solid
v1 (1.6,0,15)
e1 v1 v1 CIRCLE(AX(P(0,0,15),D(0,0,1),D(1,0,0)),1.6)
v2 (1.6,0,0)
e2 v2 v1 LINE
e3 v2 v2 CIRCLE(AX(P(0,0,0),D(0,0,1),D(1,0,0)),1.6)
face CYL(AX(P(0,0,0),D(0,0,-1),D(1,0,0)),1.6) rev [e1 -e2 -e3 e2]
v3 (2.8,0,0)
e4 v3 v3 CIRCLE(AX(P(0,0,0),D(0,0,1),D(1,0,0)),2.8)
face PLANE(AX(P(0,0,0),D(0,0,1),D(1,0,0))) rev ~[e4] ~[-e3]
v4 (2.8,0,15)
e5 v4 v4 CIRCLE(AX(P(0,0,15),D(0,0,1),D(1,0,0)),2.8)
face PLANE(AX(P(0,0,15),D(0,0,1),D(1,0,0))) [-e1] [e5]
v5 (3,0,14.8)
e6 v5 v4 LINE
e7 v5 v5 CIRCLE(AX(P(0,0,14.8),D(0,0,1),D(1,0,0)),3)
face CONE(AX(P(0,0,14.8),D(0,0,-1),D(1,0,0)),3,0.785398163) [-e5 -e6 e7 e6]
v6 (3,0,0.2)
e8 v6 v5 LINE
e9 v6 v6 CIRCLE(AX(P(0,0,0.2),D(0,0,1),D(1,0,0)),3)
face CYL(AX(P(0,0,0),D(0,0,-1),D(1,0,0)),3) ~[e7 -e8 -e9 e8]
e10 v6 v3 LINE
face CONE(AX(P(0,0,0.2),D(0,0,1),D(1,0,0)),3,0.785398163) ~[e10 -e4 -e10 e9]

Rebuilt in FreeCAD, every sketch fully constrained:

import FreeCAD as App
import Part
import Sketcher

V = App.Vector


def edges_at(feature, points):
    """Names of the edges that pass closest to the given points."""
    edges = feature.Shape.Edges
    near = lambda p: min(range(len(edges)), key=lambda i: edges[i].distToShape(Part.Vertex(*p))[0])
    return sorted({f"Edge{near(p) + 1}" for p in points})

doc = App.newDocument("Part")
body = doc.addObject("PartDesign::Body", "Body")

sketch1 = body.newObject("Sketcher::SketchObject", "Sketch")
sketch1.AttachmentSupport = (doc.getObject("XY_Plane"), [""])
sketch1.MapMode = "FlatFace"
sketch1.addGeometry(Part.Circle(V(0, 0, 0), V(0, 0, 1), 3), False)
sketch1.addGeometry(Part.Circle(V(0, 0, 0), V(0, 0, 1), 1.6), False)
sketch1.addConstraint(Sketcher.Constraint("Coincident", 0, 3, -1, 1))
sketch1.addConstraint(Sketcher.Constraint("Coincident", 1, 3, -1, 1))
sketch1.addConstraint(Sketcher.Constraint("Diameter", 0, 6.0))
sketch1.addConstraint(Sketcher.Constraint("Diameter", 1, 3.2))
pad1 = body.newObject("PartDesign::Pad", "Pad")
pad1.Profile = sketch1
pad1.Length = 15
doc.recompute()

chamfer = body.newObject("PartDesign::Chamfer", "Chamfer")
chamfer.Base = (pad1, edges_at(pad1, [(-3, 0, 15), (-3, 0, 0)]))
chamfer.Size = 0.2

doc.recompute()
